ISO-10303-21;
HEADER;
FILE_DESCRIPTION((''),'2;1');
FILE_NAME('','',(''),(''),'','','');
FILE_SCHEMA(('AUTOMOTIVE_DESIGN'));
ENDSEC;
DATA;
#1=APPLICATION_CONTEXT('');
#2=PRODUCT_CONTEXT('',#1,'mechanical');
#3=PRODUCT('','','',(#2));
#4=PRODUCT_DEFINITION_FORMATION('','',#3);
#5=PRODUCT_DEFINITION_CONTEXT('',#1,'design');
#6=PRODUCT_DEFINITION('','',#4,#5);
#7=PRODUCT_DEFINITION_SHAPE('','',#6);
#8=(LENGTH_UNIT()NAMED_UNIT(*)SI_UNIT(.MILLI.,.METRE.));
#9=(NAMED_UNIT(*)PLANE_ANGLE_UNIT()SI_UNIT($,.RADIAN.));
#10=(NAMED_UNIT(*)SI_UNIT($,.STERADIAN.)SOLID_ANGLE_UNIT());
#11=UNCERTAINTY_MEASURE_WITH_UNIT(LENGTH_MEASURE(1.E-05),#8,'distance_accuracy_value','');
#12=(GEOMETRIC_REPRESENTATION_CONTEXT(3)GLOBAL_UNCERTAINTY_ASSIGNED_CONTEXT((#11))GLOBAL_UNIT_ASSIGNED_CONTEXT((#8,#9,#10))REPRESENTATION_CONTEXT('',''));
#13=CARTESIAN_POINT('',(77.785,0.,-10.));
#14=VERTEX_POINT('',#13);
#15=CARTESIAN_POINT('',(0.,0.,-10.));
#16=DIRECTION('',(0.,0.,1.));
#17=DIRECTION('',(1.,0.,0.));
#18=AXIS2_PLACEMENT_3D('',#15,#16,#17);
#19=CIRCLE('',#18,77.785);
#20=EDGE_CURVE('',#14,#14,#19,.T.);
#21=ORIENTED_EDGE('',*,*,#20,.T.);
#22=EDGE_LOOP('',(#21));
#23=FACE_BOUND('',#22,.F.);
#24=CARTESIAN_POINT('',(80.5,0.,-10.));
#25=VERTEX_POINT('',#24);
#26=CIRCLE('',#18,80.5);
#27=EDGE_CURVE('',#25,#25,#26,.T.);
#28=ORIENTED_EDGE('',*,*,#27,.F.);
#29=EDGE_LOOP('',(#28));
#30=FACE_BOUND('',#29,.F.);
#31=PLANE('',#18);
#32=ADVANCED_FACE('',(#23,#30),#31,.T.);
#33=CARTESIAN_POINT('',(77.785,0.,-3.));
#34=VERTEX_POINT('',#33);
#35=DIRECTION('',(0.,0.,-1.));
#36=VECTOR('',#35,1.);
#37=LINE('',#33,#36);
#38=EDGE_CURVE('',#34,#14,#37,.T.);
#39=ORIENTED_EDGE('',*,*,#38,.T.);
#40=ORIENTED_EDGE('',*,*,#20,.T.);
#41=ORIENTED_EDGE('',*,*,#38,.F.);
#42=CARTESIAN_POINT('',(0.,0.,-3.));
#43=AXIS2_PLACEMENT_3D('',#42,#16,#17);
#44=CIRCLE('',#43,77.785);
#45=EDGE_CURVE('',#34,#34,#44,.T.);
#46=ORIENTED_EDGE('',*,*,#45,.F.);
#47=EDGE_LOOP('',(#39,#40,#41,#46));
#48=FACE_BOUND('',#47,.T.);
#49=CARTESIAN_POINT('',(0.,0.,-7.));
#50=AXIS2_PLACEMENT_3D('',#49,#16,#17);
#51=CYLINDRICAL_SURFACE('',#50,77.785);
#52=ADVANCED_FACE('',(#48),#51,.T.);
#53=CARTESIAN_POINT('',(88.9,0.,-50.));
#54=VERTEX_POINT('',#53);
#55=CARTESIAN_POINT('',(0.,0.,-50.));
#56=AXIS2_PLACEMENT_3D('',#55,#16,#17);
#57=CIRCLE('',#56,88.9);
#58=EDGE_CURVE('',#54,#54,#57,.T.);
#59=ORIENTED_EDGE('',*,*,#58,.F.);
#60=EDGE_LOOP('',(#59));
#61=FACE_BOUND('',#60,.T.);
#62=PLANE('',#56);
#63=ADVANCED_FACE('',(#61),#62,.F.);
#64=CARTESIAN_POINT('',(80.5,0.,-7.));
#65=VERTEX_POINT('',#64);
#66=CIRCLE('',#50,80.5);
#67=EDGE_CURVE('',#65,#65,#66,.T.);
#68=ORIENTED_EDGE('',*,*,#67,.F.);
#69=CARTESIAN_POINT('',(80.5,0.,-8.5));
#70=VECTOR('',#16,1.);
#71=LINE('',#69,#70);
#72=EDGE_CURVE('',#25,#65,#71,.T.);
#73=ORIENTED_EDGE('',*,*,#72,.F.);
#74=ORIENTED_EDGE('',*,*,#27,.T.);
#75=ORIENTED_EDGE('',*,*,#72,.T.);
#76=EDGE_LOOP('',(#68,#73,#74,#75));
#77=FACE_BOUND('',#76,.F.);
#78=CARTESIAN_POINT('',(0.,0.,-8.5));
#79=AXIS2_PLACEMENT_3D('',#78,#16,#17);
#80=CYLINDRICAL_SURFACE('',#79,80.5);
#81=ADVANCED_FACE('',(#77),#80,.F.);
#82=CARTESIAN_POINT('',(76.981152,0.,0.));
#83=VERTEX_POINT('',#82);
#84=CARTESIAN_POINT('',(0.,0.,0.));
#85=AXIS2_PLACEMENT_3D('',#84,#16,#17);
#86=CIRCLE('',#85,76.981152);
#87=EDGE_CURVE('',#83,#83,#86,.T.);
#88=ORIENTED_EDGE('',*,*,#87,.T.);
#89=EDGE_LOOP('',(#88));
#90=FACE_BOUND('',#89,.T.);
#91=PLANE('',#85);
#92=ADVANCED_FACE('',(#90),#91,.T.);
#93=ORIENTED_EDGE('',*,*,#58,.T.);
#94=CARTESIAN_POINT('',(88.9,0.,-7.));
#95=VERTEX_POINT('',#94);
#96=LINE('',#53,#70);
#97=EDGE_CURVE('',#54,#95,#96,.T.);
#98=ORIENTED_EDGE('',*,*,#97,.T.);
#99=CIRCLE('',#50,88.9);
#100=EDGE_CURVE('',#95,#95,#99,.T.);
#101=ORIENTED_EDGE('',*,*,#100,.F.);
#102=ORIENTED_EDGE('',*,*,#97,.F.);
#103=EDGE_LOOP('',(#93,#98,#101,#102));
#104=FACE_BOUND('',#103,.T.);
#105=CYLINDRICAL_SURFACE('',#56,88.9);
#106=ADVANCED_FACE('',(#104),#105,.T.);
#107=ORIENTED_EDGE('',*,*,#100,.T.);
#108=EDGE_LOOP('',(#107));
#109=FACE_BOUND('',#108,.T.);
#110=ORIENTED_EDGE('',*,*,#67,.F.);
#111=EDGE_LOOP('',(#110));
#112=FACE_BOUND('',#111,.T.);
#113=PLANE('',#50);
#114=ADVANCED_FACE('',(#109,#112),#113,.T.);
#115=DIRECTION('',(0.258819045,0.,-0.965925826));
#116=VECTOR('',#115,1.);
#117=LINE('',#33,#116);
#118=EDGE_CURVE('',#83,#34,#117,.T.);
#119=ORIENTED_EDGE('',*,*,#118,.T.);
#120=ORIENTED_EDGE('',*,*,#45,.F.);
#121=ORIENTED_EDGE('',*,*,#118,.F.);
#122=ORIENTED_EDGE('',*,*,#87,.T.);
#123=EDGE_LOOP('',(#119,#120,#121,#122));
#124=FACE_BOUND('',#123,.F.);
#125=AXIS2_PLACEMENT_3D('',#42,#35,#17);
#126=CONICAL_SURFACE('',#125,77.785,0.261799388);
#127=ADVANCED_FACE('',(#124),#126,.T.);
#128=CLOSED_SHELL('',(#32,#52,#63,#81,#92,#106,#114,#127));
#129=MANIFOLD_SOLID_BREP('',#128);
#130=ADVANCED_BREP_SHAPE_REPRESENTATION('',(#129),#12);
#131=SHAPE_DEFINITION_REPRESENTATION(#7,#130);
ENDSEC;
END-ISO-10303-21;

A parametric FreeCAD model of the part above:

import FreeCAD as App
import Part
import Sketcher

V = App.Vector


def edges_at(feature, points):
    """Names of the edges that pass closest to the given points."""
    edges = feature.Shape.Edges
    near = lambda p: min(range(len(edges)), key=lambda i: edges[i].distToShape(Part.Vertex(*p))[0])
    return sorted({f"Edge{near(p) + 1}" for p in points})


def add_polygon(sketch, points):
    """Adds a closed chain of lines whose ends are joined by coincident constraints."""
    first, n = sketch.GeometryCount, len(points)
    for a, b in zip(points, points[1:] + points[:1]):
        sketch.addGeometry(Part.LineSegment(App.Vector(*a, 0), App.Vector(*b, 0)), False)
    for i in range(n):
        sketch.addConstraint(Sketcher.Constraint("Coincident", first + i, 2, first + (i + 1) % n, 1))

doc = App.newDocument("Part")
body = doc.addObject("PartDesign::Body", "Body")

# Sketch on XZ plane
sketch1 = body.newObject("Sketcher::SketchObject", "Sketch")
sketch1.AttachmentSupport = (doc.getObject("XZ_Plane"), [""])
sketch1.MapMode = "FlatFace"
add_polygon(sketch1, [(78, 0), (0, 0), (0, -50), (89, -50), (89, -7), (78, -7)])  # lines 0-5
sketch1.addConstraint([
    Sketcher.Constraint("Horizontal", 0),
    Sketcher.Constraint("Vertical", 1),
    Sketcher.Constraint("Horizontal", 2),
    Sketcher.Constraint("Vertical", 3),
    Sketcher.Constraint("Horizontal", 4),
    Sketcher.Constraint("Vertical", 5),
    Sketcher.Constraint("Coincident", 0, 2, -1, 1),
    Sketcher.Constraint("DistanceY", 1, 2, 1, 1, 50.0),
    Sketcher.Constraint("DistanceY", 3, 1, 3, 2, 43.0),
    Sketcher.Constraint("DistanceX", 2, 1, 2, 2, 88.9),
    Sketcher.Constraint("DistanceX", 0, 2, 0, 1, 77.785),
])
revolution = body.newObject("PartDesign::Revolution", "Revolution")
revolution.Profile = sketch1
revolution.ReferenceAxis = (sketch1, ["V_Axis"])
revolution.Angle = 360
doc.recompute()

chamfer = body.newObject("PartDesign::Chamfer", "Chamfer")
chamfer.Base = (revolution, edges_at(revolution, [(-77.785, 0, 0)]))
chamfer.ChamferType = "Two distances"
chamfer.Size = 0.803848
chamfer.Size2 = 3

# Sketch on XZ plane
sketch2 = body.newObject("Sketcher::SketchObject", "Sketch001")
sketch2.AttachmentSupport = (doc.getObject("XZ_Plane"), [""])
sketch2.MapMode = "FlatFace"
add_polygon(sketch2, [(77.8, -7), (77.8, -10), (80.5, -10), (80.5, -7)])  # lines 0-3
sketch2.addConstraint([
    Sketcher.Constraint("Vertical", 0),
    Sketcher.Constraint("Horizontal", 1),
    Sketcher.Constraint("Vertical", 2),
    Sketcher.Constraint("Horizontal", 3),
    Sketcher.Constraint("DistanceY", 0, 2, 0, 1, 3.0),
    Sketcher.Constraint("DistanceY", 0, 2, -1, 1, 10.0),
    Sketcher.Constraint("DistanceX", -1, 1, 1, 2, 80.5),
    Sketcher.Constraint("DistanceX", 1, 1, 1, 2, 2.715),
])
groove = body.newObject("PartDesign::Groove", "Groove")
groove.Profile = sketch2
groove.ReferenceAxis = (sketch2, ["V_Axis"])
groove.Angle = 360

doc.recompute()
